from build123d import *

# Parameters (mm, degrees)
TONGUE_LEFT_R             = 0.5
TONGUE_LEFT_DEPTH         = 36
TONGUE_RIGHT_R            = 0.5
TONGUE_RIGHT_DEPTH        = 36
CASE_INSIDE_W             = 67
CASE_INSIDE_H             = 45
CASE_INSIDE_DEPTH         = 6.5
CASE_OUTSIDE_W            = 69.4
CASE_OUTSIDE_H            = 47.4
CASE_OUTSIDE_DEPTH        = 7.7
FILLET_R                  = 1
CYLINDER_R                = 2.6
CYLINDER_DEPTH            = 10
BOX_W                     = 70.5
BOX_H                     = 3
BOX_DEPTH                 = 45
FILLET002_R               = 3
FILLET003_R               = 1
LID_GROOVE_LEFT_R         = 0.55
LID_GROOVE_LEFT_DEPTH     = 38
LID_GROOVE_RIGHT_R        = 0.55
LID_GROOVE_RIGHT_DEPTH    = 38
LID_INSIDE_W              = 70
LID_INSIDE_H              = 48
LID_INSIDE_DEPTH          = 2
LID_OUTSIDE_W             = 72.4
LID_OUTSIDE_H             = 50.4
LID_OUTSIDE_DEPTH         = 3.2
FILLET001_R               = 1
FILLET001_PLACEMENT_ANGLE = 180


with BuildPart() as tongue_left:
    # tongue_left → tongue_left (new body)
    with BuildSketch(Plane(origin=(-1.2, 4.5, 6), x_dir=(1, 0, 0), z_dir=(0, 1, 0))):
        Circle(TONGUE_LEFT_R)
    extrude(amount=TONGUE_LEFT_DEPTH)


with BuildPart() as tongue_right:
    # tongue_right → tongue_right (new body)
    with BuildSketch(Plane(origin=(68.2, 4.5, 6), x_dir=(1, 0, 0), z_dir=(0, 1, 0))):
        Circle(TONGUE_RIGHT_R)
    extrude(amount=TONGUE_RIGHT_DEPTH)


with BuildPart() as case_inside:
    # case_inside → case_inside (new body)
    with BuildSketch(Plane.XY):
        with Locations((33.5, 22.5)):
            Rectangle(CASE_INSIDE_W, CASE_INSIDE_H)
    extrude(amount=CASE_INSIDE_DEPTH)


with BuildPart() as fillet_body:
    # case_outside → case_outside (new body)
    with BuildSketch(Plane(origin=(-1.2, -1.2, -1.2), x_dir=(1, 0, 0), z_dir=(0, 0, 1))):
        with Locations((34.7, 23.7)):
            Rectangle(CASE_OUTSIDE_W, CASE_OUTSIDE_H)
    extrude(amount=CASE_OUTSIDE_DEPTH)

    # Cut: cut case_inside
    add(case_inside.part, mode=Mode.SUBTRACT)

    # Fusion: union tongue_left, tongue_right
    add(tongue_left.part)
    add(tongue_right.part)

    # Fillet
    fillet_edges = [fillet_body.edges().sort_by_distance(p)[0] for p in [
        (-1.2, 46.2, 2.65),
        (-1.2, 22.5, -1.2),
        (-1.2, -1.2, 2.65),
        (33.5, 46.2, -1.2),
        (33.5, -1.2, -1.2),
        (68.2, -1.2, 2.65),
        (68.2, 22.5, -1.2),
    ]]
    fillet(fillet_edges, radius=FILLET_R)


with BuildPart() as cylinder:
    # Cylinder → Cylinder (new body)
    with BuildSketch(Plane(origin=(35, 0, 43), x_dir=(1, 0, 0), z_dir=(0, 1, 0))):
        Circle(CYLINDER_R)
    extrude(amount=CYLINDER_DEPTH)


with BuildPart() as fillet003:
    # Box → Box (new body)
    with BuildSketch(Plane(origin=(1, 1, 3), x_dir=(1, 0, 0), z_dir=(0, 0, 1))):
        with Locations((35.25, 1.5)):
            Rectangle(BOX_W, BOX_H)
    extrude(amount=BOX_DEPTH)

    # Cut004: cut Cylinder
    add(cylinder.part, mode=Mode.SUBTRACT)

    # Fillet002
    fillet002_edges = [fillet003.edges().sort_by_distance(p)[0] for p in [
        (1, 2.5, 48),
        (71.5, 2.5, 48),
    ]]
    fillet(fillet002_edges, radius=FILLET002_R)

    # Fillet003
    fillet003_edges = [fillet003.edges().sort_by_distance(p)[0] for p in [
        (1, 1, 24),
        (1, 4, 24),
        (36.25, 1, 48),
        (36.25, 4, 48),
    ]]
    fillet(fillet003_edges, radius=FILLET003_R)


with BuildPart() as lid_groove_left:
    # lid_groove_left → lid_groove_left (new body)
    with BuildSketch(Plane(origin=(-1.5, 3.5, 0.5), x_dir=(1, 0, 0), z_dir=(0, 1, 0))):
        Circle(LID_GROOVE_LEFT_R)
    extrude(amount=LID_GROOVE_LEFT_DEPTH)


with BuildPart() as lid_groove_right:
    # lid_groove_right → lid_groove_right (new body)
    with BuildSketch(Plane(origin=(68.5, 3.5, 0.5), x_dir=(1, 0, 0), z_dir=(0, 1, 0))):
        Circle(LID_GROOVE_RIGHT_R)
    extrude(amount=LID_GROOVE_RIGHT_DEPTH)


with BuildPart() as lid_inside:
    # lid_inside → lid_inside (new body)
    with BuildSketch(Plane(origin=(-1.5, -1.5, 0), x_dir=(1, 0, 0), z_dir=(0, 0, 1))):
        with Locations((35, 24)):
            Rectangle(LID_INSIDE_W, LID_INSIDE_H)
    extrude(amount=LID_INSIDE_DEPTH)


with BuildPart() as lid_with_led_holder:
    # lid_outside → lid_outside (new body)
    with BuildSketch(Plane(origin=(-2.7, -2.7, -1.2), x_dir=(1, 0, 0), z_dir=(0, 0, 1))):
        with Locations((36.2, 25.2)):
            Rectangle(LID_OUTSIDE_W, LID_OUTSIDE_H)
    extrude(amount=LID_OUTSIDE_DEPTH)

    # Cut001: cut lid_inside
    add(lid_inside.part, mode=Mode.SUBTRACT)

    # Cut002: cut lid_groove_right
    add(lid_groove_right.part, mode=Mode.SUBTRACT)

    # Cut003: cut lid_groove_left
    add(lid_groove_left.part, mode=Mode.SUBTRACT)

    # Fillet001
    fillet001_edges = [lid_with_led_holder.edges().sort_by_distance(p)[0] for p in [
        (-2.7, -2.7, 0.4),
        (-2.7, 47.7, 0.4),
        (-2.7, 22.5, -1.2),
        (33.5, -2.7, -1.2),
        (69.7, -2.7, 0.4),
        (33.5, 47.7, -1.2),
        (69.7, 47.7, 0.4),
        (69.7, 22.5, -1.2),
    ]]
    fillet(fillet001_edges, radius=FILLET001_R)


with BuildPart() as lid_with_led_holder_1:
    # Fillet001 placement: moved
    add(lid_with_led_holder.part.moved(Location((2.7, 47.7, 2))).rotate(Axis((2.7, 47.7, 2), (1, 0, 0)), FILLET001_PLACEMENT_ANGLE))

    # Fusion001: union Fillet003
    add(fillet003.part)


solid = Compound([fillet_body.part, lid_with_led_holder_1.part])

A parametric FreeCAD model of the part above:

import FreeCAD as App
import Part
import Sketcher
Q = App.Units.Quantity


def edges_at(feature, points):
    """Names of the edges that pass closest to the given points."""
    edges = feature.Shape.Edges
    near = lambda p: min(range(len(edges)), key=lambda i: edges[i].distToShape(Part.Vertex(*p))[0])
    return sorted({f"Edge{near(p) + 1}" for p in points})


def add_polygon(sketch, points):
    """Adds a closed chain of lines whose ends are joined by coincident constraints."""
    first, n = sketch.GeometryCount, len(points)
    for a, b in zip(points, points[1:] + points[:1]):
        sketch.addGeometry(Part.LineSegment(App.Vector(*a, 0), App.Vector(*b, 0)), False)
    for i in range(n):
        sketch.addConstraint(Sketcher.Constraint("Coincident", first + i, 2, first + (i + 1) % n, 1))

doc = App.newDocument("Part")
params = doc.addObject("Spreadsheet::Sheet", "Params")
for row, (alias, value) in enumerate([
    ("sketch1_diameter", "1 mm"),
    ("pad1_length", "36 mm"),
    ("sketch2_diameter", "1 mm"),
    ("pad2_length", "36 mm"),
    ("sketch3_width", "67 mm"),
    ("sketch3_height", "45 mm"),
    ("pad3_length", "6.5 mm"),
    ("sketch4_width", "69.4 mm"),
    ("sketch4_height", "47.4 mm"),
    ("pad4_length", "7.7 mm"),
    ("fillet_radius", "1 mm"),
    ("sketch5_diameter", "5.2 mm"),
    ("pad5_length", "10 mm"),
    ("sketch6_height", "3 mm"),
    ("sketch6_width", "70.5 mm"),
    ("pad6_length", "45 mm"),
    ("fillet2_radius", "3 mm"),
    ("fillet3_radius", "1 mm"),
    ("sketch7_diameter", "1.1 mm"),
    ("pad7_length", "38 mm"),
    ("sketch8_diameter", "1.1 mm"),
    ("pad8_length", "38 mm"),
    ("sketch9_width", "70 mm"),
    ("sketch9_height", "48 mm"),
    ("pad9_length", "2 mm"),
    ("sketch10_width", "72.4 mm"),
    ("sketch10_height", "50.4 mm"),
    ("pad10_length", "3.2 mm"),
    ("fillet4_radius", "1 mm"),
], start=1):
    params.set(f"A{row}", alias)
    params.set(f"B{row}", "=" + value)
    params.setAlias(f"B{row}", alias)

body = doc.addObject("PartDesign::Body", "Body")

sketch1 = doc.addObject("Sketcher::SketchObject", "Sketch")
body.addObject(sketch1)
sketch1.AttachmentSupport = (doc.XZ_Plane, [""])
sketch1.MapMode = "FlatFace"
sketch1.AttachmentOffset = App.Placement(App.Vector(0, 0, -4.5), App.Rotation())
sketch1.addGeometry(Part.Circle(App.Vector(-1.2, 6, 0), App.Vector(0, 0, 1), 0.5), False)
sketch1.addConstraint(Sketcher.Constraint("Diameter", 0, Q("1 mm")))
sketch1.addConstraint(Sketcher.Constraint("DistanceY", -1, 1, 0, 3, Q("6 mm")))
sketch1.addConstraint(Sketcher.Constraint("DistanceX", 0, 3, -1, 1, Q("1.2 mm")))
sketch1.setExpression("Constraints[0]", "Params.sketch1_diameter")
pad1 = doc.addObject("PartDesign::Pad", "Pad")
body.addObject(pad1)
pad1.Profile = sketch1
pad1.setExpression("Length", "Params.pad1_length")
pad1.Reversed = True
body2 = doc.addObject("PartDesign::Body", "Body001")

sketch2 = doc.addObject("Sketcher::SketchObject", "Sketch001")
body2.addObject(sketch2)
sketch2.AttachmentSupport = (doc.getObject("XZ_Plane001"), [""])
sketch2.MapMode = "FlatFace"
sketch2.AttachmentOffset = App.Placement(App.Vector(0, 0, -4.5), App.Rotation())
sketch2.addGeometry(Part.Circle(App.Vector(68.2, 6, 0), App.Vector(0, 0, 1), 0.5), False)
sketch2.addConstraint(Sketcher.Constraint("Diameter", 0, Q("1 mm")))
sketch2.addConstraint(Sketcher.Constraint("DistanceY", -1, 1, 0, 3, Q("6 mm")))
sketch2.addConstraint(Sketcher.Constraint("DistanceX", -1, 1, 0, 3, Q("68.2 mm")))
sketch2.setExpression("Constraints[0]", "Params.sketch2_diameter")
pad2 = doc.addObject("PartDesign::Pad", "Pad001")
body2.addObject(pad2)
pad2.Profile = sketch2
pad2.setExpression("Length", "Params.pad2_length")
pad2.Reversed = True
body3 = doc.addObject("PartDesign::Body", "Body002")

sketch3 = doc.addObject("Sketcher::SketchObject", "Sketch002")
body3.addObject(sketch3)
sketch3.AttachmentSupport = (doc.getObject("XY_Plane002"), [""])
sketch3.MapMode = "FlatFace"
add_polygon(sketch3, [(0, 45), (0, 0), (67, 0), (67, 45)])
sketch3.addConstraint(Sketcher.Constraint("Vertical", 0))
sketch3.addConstraint(Sketcher.Constraint("Horizontal", 1))
sketch3.addConstraint(Sketcher.Constraint("Vertical", 2))
sketch3.addConstraint(Sketcher.Constraint("Horizontal", 3))
sketch3.addConstraint(Sketcher.Constraint("Coincident", 0, 2, -1, 1))
sketch3.addConstraint(Sketcher.Constraint("DistanceX", 1, 1, 1, 2, Q("67 mm")))
sketch3.addConstraint(Sketcher.Constraint("DistanceY", 0, 2, 0, 1, Q("45 mm")))
sketch3.setExpression("Constraints[9]", "Params.sketch3_width")
sketch3.setExpression("Constraints[10]", "Params.sketch3_height")
pad3 = doc.addObject("PartDesign::Pad", "Pad002")
body3.addObject(pad3)
pad3.Profile = sketch3
pad3.setExpression("Length", "Params.pad3_length")
body4 = doc.addObject("PartDesign::Body", "Body003")

sketch4 = doc.addObject("Sketcher::SketchObject", "Sketch003")
body4.addObject(sketch4)
sketch4.AttachmentSupport = (doc.getObject("XY_Plane003"), [""])
sketch4.MapMode = "FlatFace"
sketch4.AttachmentOffset = App.Placement(App.Vector(0, 0, -1.2), App.Rotation())
add_polygon(sketch4, [(-1, 46), (-1, -1), (68, -1), (68, 46)])
sketch4.addConstraint(Sketcher.Constraint("Vertical", 0))
sketch4.addConstraint(Sketcher.Constraint("Horizontal", 1))
sketch4.addConstraint(Sketcher.Constraint("Vertical", 2))
sketch4.addConstraint(Sketcher.Constraint("Horizontal", 3))
sketch4.addConstraint(Sketcher.Constraint("DistanceX", 1, 1, 1, 2, Q("69.4 mm")))
sketch4.addConstraint(Sketcher.Constraint("DistanceY", 0, 2, 0, 1, Q("47.4 mm")))
sketch4.addConstraint(Sketcher.Constraint("DistanceX", 0, 2, -1, 1, Q("1.2 mm")))
sketch4.addConstraint(Sketcher.Constraint("DistanceY", 0, 2, -1, 1, Q("1.2 mm")))
sketch4.setExpression("Constraints[8]", "Params.sketch4_width")
sketch4.setExpression("Constraints[9]", "Params.sketch4_height")
pad4 = doc.addObject("PartDesign::Pad", "Pad003")
body4.addObject(pad4)
pad4.Profile = sketch4
pad4.setExpression("Length", "Params.pad4_length")
doc.recompute()

boolean = doc.addObject("PartDesign::Boolean", "Boolean")
body4.addObject(boolean)
boolean.Type = "Cut"
boolean.addObjects([body3])
doc.recompute()

boolean2 = doc.addObject("PartDesign::Boolean", "Boolean001")
body4.addObject(boolean2)
boolean2.Type = "Fuse"
boolean2.addObjects([body])
doc.recompute()

boolean3 = doc.addObject("PartDesign::Boolean", "Boolean002")
body4.addObject(boolean3)
boolean3.Type = "Fuse"
boolean3.addObjects([body2])
doc.recompute()

fillet = doc.addObject("PartDesign::Fillet", "Fillet")
body4.addObject(fillet)
fillet.Base = (boolean3, edges_at(boolean3, [
    (-1.2, 46.2, 2.65),
    (-1.2, 22.5, -1.2),
    (-1.2, -1.2, 2.65),
    (33.5, 46.2, -1.2),
    (33.5, -1.2, -1.2),
    (68.2, -1.2, 2.65),
    (68.2, 22.5, -1.2),
]))
fillet.setExpression("Radius", "Params.fillet_radius")
body5 = doc.addObject("PartDesign::Body", "Body004")

sketch5 = doc.addObject("Sketcher::SketchObject", "Sketch004")
body5.addObject(sketch5)
sketch5.AttachmentSupport = (doc.getObject("XZ_Plane004"), [""])
sketch5.MapMode = "FlatFace"
sketch5.addGeometry(Part.Circle(App.Vector(35, 43, 0), App.Vector(0, 0, 1), 2.6), False)
sketch5.addConstraint(Sketcher.Constraint("Diameter", 0, Q("5.2 mm")))
sketch5.addConstraint(Sketcher.Constraint("DistanceX", -1, 1, 0, 3, Q("35 mm")))
sketch5.addConstraint(Sketcher.Constraint("DistanceY", -1, 1, 0, 3, Q("43 mm")))
sketch5.setExpression("Constraints[0]", "Params.sketch5_diameter")
pad5 = doc.addObject("PartDesign::Pad", "Pad004")
body5.addObject(pad5)
pad5.Profile = sketch5
pad5.setExpression("Length", "Params.pad5_length")
pad5.Reversed = True
body6 = doc.addObject("PartDesign::Body", "Body005")

sketch6 = doc.addObject("Sketcher::SketchObject", "Sketch005")
body6.addObject(sketch6)
sketch6.AttachmentSupport = (doc.getObject("XY_Plane005"), [""])
sketch6.MapMode = "FlatFace"
sketch6.AttachmentOffset = App.Placement(App.Vector(0, 0, 3), App.Rotation())
add_polygon(sketch6, [(1, 4), (1, 1), (71.5, 1), (71.5, 4)])
sketch6.addConstraint(Sketcher.Constraint("Vertical", 0))
sketch6.addConstraint(Sketcher.Constraint("Horizontal", 1))
sketch6.addConstraint(Sketcher.Constraint("Vertical", 2))
sketch6.addConstraint(Sketcher.Constraint("Horizontal", 3))
sketch6.addConstraint(Sketcher.Constraint("DistanceY", 0, 2, 0, 1, Q("3 mm")))
sketch6.addConstraint(Sketcher.Constraint("DistanceX", 1, 1, 1, 2, Q("70.5 mm")))
sketch6.addConstraint(Sketcher.Constraint("DistanceX", -1, 1, 0, 2, Q("1 mm")))
sketch6.addConstraint(Sketcher.Constraint("DistanceY", -1, 1, 0, 2, Q("1 mm")))
sketch6.setExpression("Constraints[8]", "Params.sketch6_height")
sketch6.setExpression("Constraints[9]", "Params.sketch6_width")
pad6 = doc.addObject("PartDesign::Pad", "Pad005")
body6.addObject(pad6)
pad6.Profile = sketch6
pad6.setExpression("Length", "Params.pad6_length")
doc.recompute()

boolean4 = doc.addObject("PartDesign::Boolean", "Boolean003")
body6.addObject(boolean4)
boolean4.Type = "Cut"
boolean4.addObjects([body5])
doc.recompute()

fillet2 = doc.addObject("PartDesign::Fillet", "Fillet001")
body6.addObject(fillet2)
fillet2.Base = (boolean4, edges_at(boolean4, [(1, 2.5, 48), (71.5, 2.5, 48)]))
fillet2.setExpression("Radius", "Params.fillet2_radius")
doc.recompute()

fillet3 = doc.addObject("PartDesign::Fillet", "Fillet002")
body6.addObject(fillet3)
fillet3.Base = (fillet2, edges_at(fillet2, [
    (1, 1, 24),
    (1, 4, 24),
    (36.25, 1, 48),
    (36.25, 4, 48),
]))
fillet3.setExpression("Radius", "Params.fillet3_radius")
body7 = doc.addObject("PartDesign::Body", "Body006")

sketch7 = doc.addObject("Sketcher::SketchObject", "Sketch006")
body7.addObject(sketch7)
sketch7.AttachmentSupport = (doc.getObject("XZ_Plane006"), [""])
sketch7.MapMode = "FlatFace"
sketch7.AttachmentOffset = App.Placement(App.Vector(0, 0, -3.5), App.Rotation())
sketch7.addGeometry(Part.Circle(App.Vector(-1.5, 0.5, 0), App.Vector(0, 0, 1), 0.6), False)
sketch7.addConstraint(Sketcher.Constraint("Diameter", 0, Q("1.1 mm")))
sketch7.addConstraint(Sketcher.Constraint("DistanceX", 0, 3, -1, 1, Q("1.5 mm")))
sketch7.addConstraint(Sketcher.Constraint("DistanceY", -1, 1, 0, 3, Q("0.5 mm")))
sketch7.setExpression("Constraints[0]", "Params.sketch7_diameter")
pad7 = doc.addObject("PartDesign::Pad", "Pad006")
body7.addObject(pad7)
pad7.Profile = sketch7
pad7.setExpression("Length", "Params.pad7_length")
pad7.Reversed = True
body8 = doc.addObject("PartDesign::Body", "Body007")

sketch8 = doc.addObject("Sketcher::SketchObject", "Sketch007")
body8.addObject(sketch8)
sketch8.AttachmentSupport = (doc.getObject("XZ_Plane007"), [""])
sketch8.MapMode = "FlatFace"
sketch8.AttachmentOffset = App.Placement(App.Vector(0, 0, -3.5), App.Rotation())
sketch8.addGeometry(Part.Circle(App.Vector(68.5, 0.5, 0), App.Vector(0, 0, 1), 0.6), False)
sketch8.addConstraint(Sketcher.Constraint("Diameter", 0, Q("1.1 mm")))
sketch8.addConstraint(Sketcher.Constraint("DistanceX", -1, 1, 0, 3, Q("68.5 mm")))
sketch8.addConstraint(Sketcher.Constraint("DistanceY", -1, 1, 0, 3, Q("0.5 mm")))
sketch8.setExpression("Constraints[0]", "Params.sketch8_diameter")
pad8 = doc.addObject("PartDesign::Pad", "Pad007")
body8.addObject(pad8)
pad8.Profile = sketch8
pad8.setExpression("Length", "Params.pad8_length")
pad8.Reversed = True
body9 = doc.addObject("PartDesign::Body", "Body008")

sketch9 = doc.addObject("Sketcher::SketchObject", "Sketch008")
body9.addObject(sketch9)
sketch9.AttachmentSupport = (doc.getObject("XY_Plane008"), [""])
sketch9.MapMode = "FlatFace"
add_polygon(sketch9, [(-2, 46), (-2, -2), (68, -2), (68, 46)])
sketch9.addConstraint(Sketcher.Constraint("Vertical", 0))
sketch9.addConstraint(Sketcher.Constraint("Horizontal", 1))
sketch9.addConstraint(Sketcher.Constraint("Vertical", 2))
sketch9.addConstraint(Sketcher.Constraint("Horizontal", 3))
sketch9.addConstraint(Sketcher.Constraint("DistanceX", 1, 1, 1, 2, Q("70 mm")))
sketch9.addConstraint(Sketcher.Constraint("DistanceY", 0, 2, 0, 1, Q("48 mm")))
sketch9.addConstraint(Sketcher.Constraint("DistanceX", 0, 2, -1, 1, Q("1.5 mm")))
sketch9.addConstraint(Sketcher.Constraint("DistanceY", 0, 2, -1, 1, Q("1.5 mm")))
sketch9.setExpression("Constraints[8]", "Params.sketch9_width")
sketch9.setExpression("Constraints[9]", "Params.sketch9_height")
pad9 = doc.addObject("PartDesign::Pad", "Pad008")
body9.addObject(pad9)
pad9.Profile = sketch9
pad9.setExpression("Length", "Params.pad9_length")
body10 = doc.addObject("PartDesign::Body", "Body009")

sketch10 = doc.addObject("Sketcher::SketchObject", "Sketch009")
body10.addObject(sketch10)
sketch10.AttachmentSupport = (doc.getObject("XY_Plane009"), [""])
sketch10.MapMode = "FlatFace"
sketch10.AttachmentOffset = App.Placement(App.Vector(0, 0, -1.2), App.Rotation())
add_polygon(sketch10, [(-3, 48), (-3, -3), (70, -3), (70, 48)])
sketch10.addConstraint(Sketcher.Constraint("Vertical", 0))
sketch10.addConstraint(Sketcher.Constraint("Horizontal", 1))
sketch10.addConstraint(Sketcher.Constraint("Vertical", 2))
sketch10.addConstraint(Sketcher.Constraint("Horizontal", 3))
sketch10.addConstraint(Sketcher.Constraint("DistanceX", 1, 1, 1, 2, Q("72.4 mm")))
sketch10.addConstraint(Sketcher.Constraint("DistanceY", 0, 2, 0, 1, Q("50.4 mm")))
sketch10.addConstraint(Sketcher.Constraint("DistanceX", 0, 2, -1, 1, Q("2.7 mm")))
sketch10.addConstraint(Sketcher.Constraint("DistanceY", 0, 2, -1, 1, Q("2.7 mm")))
sketch10.setExpression("Constraints[8]", "Params.sketch10_width")
sketch10.setExpression("Constraints[9]", "Params.sketch10_height")
pad10 = doc.addObject("PartDesign::Pad", "Pad009")
body10.addObject(pad10)
pad10.Profile = sketch10
pad10.setExpression("Length", "Params.pad10_length")
doc.recompute()

boolean5 = doc.addObject("PartDesign::Boolean", "Boolean004")
body10.addObject(boolean5)
boolean5.Type = "Cut"
boolean5.addObjects([body9])
doc.recompute()

boolean6 = doc.addObject("PartDesign::Boolean", "Boolean005")
body10.addObject(boolean6)
boolean6.Type = "Cut"
boolean6.addObjects([body8])
doc.recompute()

boolean7 = doc.addObject("PartDesign::Boolean", "Boolean006")
body10.addObject(boolean7)
boolean7.Type = "Cut"
boolean7.addObjects([body7])
doc.recompute()

fillet4 = doc.addObject("PartDesign::Fillet", "Fillet003")
body10.addObject(fillet4)
fillet4.Base = (boolean7, edges_at(boolean7, [
    (-2.7, -2.7, 0.4),
    (-2.7, 47.7, 0.4),
    (-2.7, 22.5, -1.2),
    (33.5, -2.7, -1.2),
    (69.7, -2.7, 0.4),
    (33.5, 47.7, -1.2),
    (69.7, 47.7, 0.4),
    (69.7, 22.5, -1.2),
]))
fillet4.setExpression("Radius", "Params.fillet4_radius")
body11 = doc.addObject("PartDesign::Body", "Body010")
doc.recompute()

body10.Placement = App.Placement(App.Vector(2.7, 47.7, 2), App.Rotation(App.Vector(1, 0, 0), 180))
boolean8 = doc.addObject("PartDesign::Boolean", "Boolean007")
body11.addObject(boolean8)
boolean8.Type = "Fuse"
boolean8.addObjects([body10])
doc.recompute()

boolean9 = doc.addObject("PartDesign::Boolean", "Boolean008")
body11.addObject(boolean9)
boolean9.Type = "Fuse"
boolean9.addObjects([body6])

doc.recompute()
